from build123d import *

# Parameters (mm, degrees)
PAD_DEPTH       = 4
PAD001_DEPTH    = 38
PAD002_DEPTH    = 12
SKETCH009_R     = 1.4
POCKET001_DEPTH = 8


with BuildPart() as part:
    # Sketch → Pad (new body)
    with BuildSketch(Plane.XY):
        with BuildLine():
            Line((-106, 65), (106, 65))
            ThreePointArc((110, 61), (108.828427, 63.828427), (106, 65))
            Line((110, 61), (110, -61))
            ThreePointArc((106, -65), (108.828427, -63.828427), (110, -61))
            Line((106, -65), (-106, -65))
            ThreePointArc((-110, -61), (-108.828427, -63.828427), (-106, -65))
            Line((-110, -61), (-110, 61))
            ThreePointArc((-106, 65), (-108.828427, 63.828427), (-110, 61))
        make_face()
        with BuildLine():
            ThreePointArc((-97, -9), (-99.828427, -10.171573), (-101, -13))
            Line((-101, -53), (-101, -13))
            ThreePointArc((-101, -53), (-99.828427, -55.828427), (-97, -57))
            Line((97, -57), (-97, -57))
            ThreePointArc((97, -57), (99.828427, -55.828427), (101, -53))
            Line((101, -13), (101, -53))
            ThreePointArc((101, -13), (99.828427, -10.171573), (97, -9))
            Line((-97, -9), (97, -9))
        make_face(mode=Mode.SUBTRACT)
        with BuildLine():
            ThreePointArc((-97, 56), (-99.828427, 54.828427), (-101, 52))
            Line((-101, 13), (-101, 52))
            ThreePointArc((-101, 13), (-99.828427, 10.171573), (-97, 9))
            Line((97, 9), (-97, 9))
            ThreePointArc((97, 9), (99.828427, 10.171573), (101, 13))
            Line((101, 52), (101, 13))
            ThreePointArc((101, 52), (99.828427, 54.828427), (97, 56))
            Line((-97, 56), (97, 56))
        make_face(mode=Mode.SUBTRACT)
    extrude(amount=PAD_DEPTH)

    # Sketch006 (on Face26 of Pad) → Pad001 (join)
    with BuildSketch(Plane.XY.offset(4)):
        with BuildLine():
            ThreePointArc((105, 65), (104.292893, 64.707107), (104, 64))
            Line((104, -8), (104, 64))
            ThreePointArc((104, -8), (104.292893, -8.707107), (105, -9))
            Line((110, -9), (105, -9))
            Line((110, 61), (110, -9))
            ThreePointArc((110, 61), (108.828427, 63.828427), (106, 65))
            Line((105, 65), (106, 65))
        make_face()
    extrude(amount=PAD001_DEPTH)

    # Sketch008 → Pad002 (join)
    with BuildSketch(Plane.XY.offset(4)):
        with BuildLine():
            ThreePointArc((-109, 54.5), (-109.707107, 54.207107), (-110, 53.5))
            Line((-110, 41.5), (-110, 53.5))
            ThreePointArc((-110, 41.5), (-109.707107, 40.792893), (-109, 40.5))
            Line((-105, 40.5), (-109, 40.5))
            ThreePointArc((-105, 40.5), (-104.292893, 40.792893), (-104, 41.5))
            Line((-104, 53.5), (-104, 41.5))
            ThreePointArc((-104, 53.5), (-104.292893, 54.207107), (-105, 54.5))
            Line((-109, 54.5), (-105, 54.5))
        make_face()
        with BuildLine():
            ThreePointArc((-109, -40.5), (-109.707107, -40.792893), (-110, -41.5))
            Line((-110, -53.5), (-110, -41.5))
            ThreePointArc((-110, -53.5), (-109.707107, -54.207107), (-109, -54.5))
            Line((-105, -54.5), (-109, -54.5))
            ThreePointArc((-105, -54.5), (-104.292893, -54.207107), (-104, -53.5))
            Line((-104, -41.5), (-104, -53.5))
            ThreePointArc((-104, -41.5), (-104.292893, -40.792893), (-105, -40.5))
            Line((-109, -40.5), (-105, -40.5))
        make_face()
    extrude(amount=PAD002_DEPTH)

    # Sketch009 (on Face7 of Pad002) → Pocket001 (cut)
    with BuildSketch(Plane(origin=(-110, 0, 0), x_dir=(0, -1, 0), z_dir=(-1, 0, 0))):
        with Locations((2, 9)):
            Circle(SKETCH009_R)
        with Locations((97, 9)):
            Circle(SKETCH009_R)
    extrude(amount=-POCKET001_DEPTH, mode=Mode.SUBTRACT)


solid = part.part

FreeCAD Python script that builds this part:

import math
import FreeCAD as App
import Part
import Sketcher
from FreeCAD import Vector
Q = App.Units.Quantity

doc = App.newDocument("Part")
body = doc.addObject("PartDesign::Body", "Body")

sketch1 = body.newObject("Sketcher::SketchObject", "Sketch")
sketch1.AttachmentSupport = (doc.getObject("XY_Plane"), [""])
sketch1.MapMode = "FlatFace"
sketch1.addGeometry(Part.LineSegment(Vector(106, 65, 0), Vector(-106, 65, 0)), False)
sketch1.addGeometry(Part.ArcOfCircle(Part.Circle(Vector(-106, 61, 0), Vector(0, 0, 1), 4), math.radians(90), math.radians(180)), False)
sketch1.addGeometry(Part.LineSegment(Vector(-110, 61, 0), Vector(-110, -61, 0)), False)
sketch1.addGeometry(Part.ArcOfCircle(Part.Circle(Vector(-106, -61, 0), Vector(0, 0, 1), 4), math.radians(-180), math.radians(-90)), False)
sketch1.addGeometry(Part.LineSegment(Vector(-106, -65, 0), Vector(106, -65, 0)), False)
sketch1.addGeometry(Part.ArcOfCircle(Part.Circle(Vector(106, -61, 0), Vector(0, 0, 1), 4), math.radians(-90), math.radians(0)), False)
sketch1.addGeometry(Part.LineSegment(Vector(110, -61, 0), Vector(110, 61, 0)), False)
sketch1.addGeometry(Part.ArcOfCircle(Part.Circle(Vector(106, 61, 0), Vector(0, 0, 1), 4), math.radians(0), math.radians(90)), False)
sketch1.addGeometry(Part.LineSegment(Vector(-97, -9, 0), Vector(97, -9, 0)), False)
sketch1.addGeometry(Part.ArcOfCircle(Part.Circle(Vector(97, -13, 0), Vector(0, 0, 1), 4), math.radians(0), math.radians(90)), False)
sketch1.addGeometry(Part.LineSegment(Vector(101, -13, 0), Vector(101, -53, 0)), False)
sketch1.addGeometry(Part.ArcOfCircle(Part.Circle(Vector(97, -53, 0), Vector(0, 0, 1), 4), math.radians(-90), math.radians(0)), False)
sketch1.addGeometry(Part.LineSegment(Vector(97, -57, 0), Vector(-97, -57, 0)), False)
sketch1.addGeometry(Part.ArcOfCircle(Part.Circle(Vector(-97, -53, 0), Vector(0, 0, 1), 4), math.radians(-180), math.radians(-90)), False)
sketch1.addGeometry(Part.LineSegment(Vector(-101, -53, 0), Vector(-101, -13, 0)), False)
sketch1.addGeometry(Part.ArcOfCircle(Part.Circle(Vector(-97, -13, 0), Vector(0, 0, 1), 4), math.radians(90), math.radians(180)), False)
sketch1.addGeometry(Part.LineSegment(Vector(-97, 56, 0), Vector(97, 56, 0)), False)
sketch1.addGeometry(Part.ArcOfCircle(Part.Circle(Vector(97, 52, 0), Vector(0, 0, 1), 4), math.radians(0), math.radians(90)), False)
sketch1.addGeometry(Part.LineSegment(Vector(101, 52, 0), Vector(101, 13, 0)), False)
sketch1.addGeometry(Part.ArcOfCircle(Part.Circle(Vector(97, 13, 0), Vector(0, 0, 1), 4), math.radians(-90), math.radians(0)), False)
sketch1.addGeometry(Part.LineSegment(Vector(97, 9, 0), Vector(-97, 9, 0)), False)
sketch1.addGeometry(Part.ArcOfCircle(Part.Circle(Vector(-97, 13, 0), Vector(0, 0, 1), 4), math.radians(-180), math.radians(-90)), False)
sketch1.addGeometry(Part.LineSegment(Vector(-101, 13, 0), Vector(-101, 52, 0)), False)
sketch1.addGeometry(Part.ArcOfCircle(Part.Circle(Vector(-97, 52, 0), Vector(0, 0, 1), 4), math.radians(90), math.radians(180)), False)
sketch1.addConstraint(Sketcher.Constraint("Tangent", 0, 2, 1, 1))
sketch1.addConstraint(Sketcher.Constraint("Tangent", 1, 2, 2, 1))
sketch1.addConstraint(Sketcher.Constraint("Tangent", 2, 2, 3, 1))
sketch1.addConstraint(Sketcher.Constraint("Tangent", 3, 2, 4, 1))
sketch1.addConstraint(Sketcher.Constraint("Tangent", 4, 2, 5, 1))
sketch1.addConstraint(Sketcher.Constraint("Tangent", 5, 2, 6, 1))
sketch1.addConstraint(Sketcher.Constraint("Tangent", 6, 2, 7, 1))
sketch1.addConstraint(Sketcher.Constraint("Tangent", 7, 2, 0, 1))
sketch1.addConstraint(Sketcher.Constraint("Tangent", 8, 2, 9, 2))
sketch1.addConstraint(Sketcher.Constraint("Tangent", 9, 1, 10, 1))
sketch1.addConstraint(Sketcher.Constraint("Tangent", 10, 2, 11, 2))
sketch1.addConstraint(Sketcher.Constraint("Tangent", 11, 1, 12, 1))
sketch1.addConstraint(Sketcher.Constraint("Tangent", 12, 2, 13, 2))
sketch1.addConstraint(Sketcher.Constraint("Tangent", 13, 1, 14, 1))
sketch1.addConstraint(Sketcher.Constraint("Tangent", 14, 2, 15, 2))
sketch1.addConstraint(Sketcher.Constraint("Tangent", 15, 1, 8, 1))
sketch1.addConstraint(Sketcher.Constraint("Tangent", 16, 2, 17, 2))
sketch1.addConstraint(Sketcher.Constraint("Tangent", 17, 1, 18, 1))
sketch1.addConstraint(Sketcher.Constraint("Tangent", 18, 2, 19, 2))
sketch1.addConstraint(Sketcher.Constraint("Tangent", 19, 1, 20, 1))
sketch1.addConstraint(Sketcher.Constraint("Tangent", 20, 2, 21, 2))
sketch1.addConstraint(Sketcher.Constraint("Tangent", 21, 1, 22, 1))
sketch1.addConstraint(Sketcher.Constraint("Tangent", 22, 2, 23, 2))
sketch1.addConstraint(Sketcher.Constraint("Tangent", 23, 1, 16, 1))
sketch1.addConstraint(Sketcher.Constraint("Horizontal", 0))
sketch1.addConstraint(Sketcher.Constraint("Vertical", 2))
sketch1.addConstraint(Sketcher.Constraint("Horizontal", 4))
sketch1.addConstraint(Sketcher.Constraint("Vertical", 6))
sketch1.addConstraint(Sketcher.Constraint("Horizontal", 8))
sketch1.addConstraint(Sketcher.Constraint("Vertical", 10))
sketch1.addConstraint(Sketcher.Constraint("Horizontal", 12))
sketch1.addConstraint(Sketcher.Constraint("Vertical", 14))
sketch1.addConstraint(Sketcher.Constraint("Horizontal", 16))
sketch1.addConstraint(Sketcher.Constraint("Vertical", 18))
sketch1.addConstraint(Sketcher.Constraint("Horizontal", 20))
sketch1.addConstraint(Sketcher.Constraint("Vertical", 22))
sketch1.addConstraint(Sketcher.Constraint("Equal", 1, 3))
sketch1.addConstraint(Sketcher.Constraint("Equal", 3, 5))
sketch1.addConstraint(Sketcher.Constraint("Equal", 5, 7))
sketch1.addConstraint(Sketcher.Constraint("Equal", 7, 9))
sketch1.addConstraint(Sketcher.Constraint("Equal", 9, 11))
sketch1.addConstraint(Sketcher.Constraint("Equal", 11, 13))
sketch1.addConstraint(Sketcher.Constraint("Equal", 13, 15))
sketch1.addConstraint(Sketcher.Constraint("Equal", 15, 17))
sketch1.addConstraint(Sketcher.Constraint("Equal", 17, 19))
sketch1.addConstraint(Sketcher.Constraint("Equal", 19, 21))
sketch1.addConstraint(Sketcher.Constraint("Equal", 21, 23))
sketch1.addConstraint(Sketcher.Constraint("Symmetric", 1, 3, 5, 3, -1, 1))
sketch1.addConstraint(Sketcher.Constraint("Symmetric", 15, 3, 19, 3, -1, 1))
sketch1.addConstraint(Sketcher.Constraint("Vertical", 11, 3, 17, 3))
sketch1.addConstraint(Sketcher.Constraint("Vertical", 15, 3, 21, 3))
sketch1.addConstraint(Sketcher.Constraint("Radius", 1, Q("4 mm")))
sketch1.addConstraint(Sketcher.Constraint("DistanceX", 0, 2, 0, 1, Q("212 mm")))
sketch1.addConstraint(Sketcher.Constraint("DistanceX", 8, 1, 8, 2, Q("194 mm")))
sketch1.addConstraint(Sketcher.Constraint("DistanceY", 2, 2, 2, 1, Q("122 mm")))
sketch1.addConstraint(Sketcher.Constraint("DistanceY", 10, 2, 10, 1, Q("40 mm")))
sketch1.addConstraint(Sketcher.Constraint("DistanceY", 18, 2, 18, 1, Q("39 mm")))
sketch1.addConstraint(Sketcher.Constraint("DistanceY", 9, 3, -1, 1, Q("13 mm")))
pad1 = body.newObject("PartDesign::Pad", "Pad")
pad1.Profile = sketch1
pad1.Length = 4

sketch2 = body.newObject("Sketcher::SketchObject", "Sketch001")
sketch2.AttachmentSupport = (doc.getObject("XY_Plane"), [""])
sketch2.MapMode = "FlatFace"
sketch2.AttachmentOffset = App.Placement(Vector(0, 0, 4), App.Rotation())
sketch2.addGeometry(Part.ArcOfCircle(Part.Circle(Vector(105, 64, 0), Vector(0, 0, 1), 1), math.radians(90), math.radians(180)), False)
sketch2.addGeometry(Part.LineSegment(Vector(104, 64, 0), Vector(104, -8, 0)), False)
sketch2.addGeometry(Part.ArcOfCircle(Part.Circle(Vector(105, -8, 0), Vector(0, 0, 1), 1), math.radians(180), math.radians(270)), False)
sketch2.addGeometry(Part.LineSegment(Vector(105, -9, 0), Vector(110, -9, 0)), False)
sketch2.addGeometry(Part.LineSegment(Vector(110, -9, 0), Vector(110, 61, 0)), False)
sketch2.addGeometry(Part.ArcOfCircle(Part.Circle(Vector(106, 61, 0), Vector(0, 0, 1), 4), math.radians(0), math.radians(90)), False)
sketch2.addGeometry(Part.LineSegment(Vector(106, 65, 0), Vector(105, 65, 0)), False)
sketch2.addConstraint(Sketcher.Constraint("Tangent", 0, 2, 1, 1))
sketch2.addConstraint(Sketcher.Constraint("Tangent", 1, 2, 2, 1))
sketch2.addConstraint(Sketcher.Constraint("Tangent", 2, 2, 3, 1))
sketch2.addConstraint(Sketcher.Constraint("Coincident", 3, 2, 4, 1))
sketch2.addConstraint(Sketcher.Constraint("Tangent", 4, 2, 5, 1))
sketch2.addConstraint(Sketcher.Constraint("Tangent", 5, 2, 6, 1))
sketch2.addConstraint(Sketcher.Constraint("Tangent", 6, 2, 0, 1))
sketch2.addConstraint(Sketcher.Constraint("Vertical", 1))
sketch2.addConstraint(Sketcher.Constraint("Horizontal", 3))
sketch2.addConstraint(Sketcher.Constraint("Vertical", 4))
sketch2.addConstraint(Sketcher.Constraint("Horizontal", 6))
sketch2.addConstraint(Sketcher.Constraint("Equal", 0, 2))
sketch2.addConstraint(Sketcher.Constraint("Radius", 0, Q("0.999999 mm")))
sketch2.addConstraint(Sketcher.Constraint("Radius", 5, Q("4 mm")))
sketch2.addConstraint(Sketcher.Constraint("DistanceX", 3, 1, 3, 2, Q("5 mm")))
sketch2.addConstraint(Sketcher.Constraint("DistanceY", 1, 2, 1, 1, Q("72 mm")))
sketch2.addConstraint(Sketcher.Constraint("DistanceX", -1, 1, 0, 3, Q("104.999999 mm")))
sketch2.addConstraint(Sketcher.Constraint("DistanceY", -1, 1, 0, 3, Q("64.000001 mm")))
pad2 = body.newObject("PartDesign::Pad", "Pad001")
pad2.Profile = sketch2
pad2.Length = 38

sketch3 = body.newObject("Sketcher::SketchObject", "Sketch002")
sketch3.AttachmentSupport = (doc.getObject("XY_Plane"), [""])
sketch3.MapMode = "FlatFace"
sketch3.AttachmentOffset = App.Placement(Vector(0, 0, 4), App.Rotation())
sketch3.addGeometry(Part.ArcOfCircle(Part.Circle(Vector(-109, 53.5, 0), Vector(0, 0, 1), 1), math.radians(90), math.radians(180)), False)
sketch3.addGeometry(Part.LineSegment(Vector(-110, 53.5, 0), Vector(-110, 41.5, 0)), False)
sketch3.addGeometry(Part.ArcOfCircle(Part.Circle(Vector(-109, 41.5, 0), Vector(0, 0, 1), 1), math.radians(180), math.radians(270)), False)
sketch3.addGeometry(Part.LineSegment(Vector(-109, 40.5, 0), Vector(-105, 40.5, 0)), False)
sketch3.addGeometry(Part.ArcOfCircle(Part.Circle(Vector(-105, 41.5, 0), Vector(0, 0, 1), 1), math.radians(-90), math.radians(0)), False)
sketch3.addGeometry(Part.LineSegment(Vector(-104, 41.5, 0), Vector(-104, 53.5, 0)), False)
sketch3.addGeometry(Part.ArcOfCircle(Part.Circle(Vector(-105, 53.5, 0), Vector(0, 0, 1), 1), math.radians(0), math.radians(90)), False)
sketch3.addGeometry(Part.LineSegment(Vector(-105, 54.5, 0), Vector(-109, 54.5, 0)), False)
sketch3.addGeometry(Part.ArcOfCircle(Part.Circle(Vector(-109, -41.5, 0), Vector(0, 0, 1), 1), math.radians(90), math.radians(180)), False)
sketch3.addGeometry(Part.LineSegment(Vector(-110, -41.5, 0), Vector(-110, -53.5, 0)), False)
sketch3.addGeometry(Part.ArcOfCircle(Part.Circle(Vector(-109, -53.5, 0), Vector(0, 0, 1), 1), math.radians(180), math.radians(270)), False)
sketch3.addGeometry(Part.LineSegment(Vector(-109, -54.5, 0), Vector(-105, -54.5, 0)), False)
sketch3.addGeometry(Part.ArcOfCircle(Part.Circle(Vector(-105, -53.5, 0), Vector(0, 0, 1), 1), math.radians(-90), math.radians(0)), False)
sketch3.addGeometry(Part.LineSegment(Vector(-104, -53.5, 0), Vector(-104, -41.5, 0)), False)
sketch3.addGeometry(Part.ArcOfCircle(Part.Circle(Vector(-105, -41.5, 0), Vector(0, 0, 1), 1), math.radians(0), math.radians(90)), False)
sketch3.addGeometry(Part.LineSegment(Vector(-105, -40.5, 0), Vector(-109, -40.5, 0)), False)
sketch3.addConstraint(Sketcher.Constraint("Tangent", 0, 2, 1, 1))
sketch3.addConstraint(Sketcher.Constraint("Tangent", 1, 2, 2, 1))
sketch3.addConstraint(Sketcher.Constraint("Tangent", 2, 2, 3, 1))
sketch3.addConstraint(Sketcher.Constraint("Tangent", 3, 2, 4, 1))
sketch3.addConstraint(Sketcher.Constraint("Tangent", 4, 2, 5, 1))
sketch3.addConstraint(Sketcher.Constraint("Tangent", 5, 2, 6, 1))
sketch3.addConstraint(Sketcher.Constraint("Tangent", 6, 2, 7, 1))
sketch3.addConstraint(Sketcher.Constraint("Tangent", 7, 2, 0, 1))
sketch3.addConstraint(Sketcher.Constraint("Tangent", 8, 2, 9, 1))
sketch3.addConstraint(Sketcher.Constraint("Tangent", 9, 2, 10, 1))
sketch3.addConstraint(Sketcher.Constraint("Tangent", 10, 2, 11, 1))
sketch3.addConstraint(Sketcher.Constraint("Tangent", 11, 2, 12, 1))
sketch3.addConstraint(Sketcher.Constraint("Tangent", 12, 2, 13, 1))
sketch3.addConstraint(Sketcher.Constraint("Tangent", 13, 2, 14, 1))
sketch3.addConstraint(Sketcher.Constraint("Tangent", 14, 2, 15, 1))
sketch3.addConstraint(Sketcher.Constraint("Tangent", 15, 2, 8, 1))
sketch3.addConstraint(Sketcher.Constraint("Vertical", 1))
sketch3.addConstraint(Sketcher.Constraint("Horizontal", 3))
sketch3.addConstraint(Sketcher.Constraint("Vertical", 5))
sketch3.addConstraint(Sketcher.Constraint("Horizontal", 7))
sketch3.addConstraint(Sketcher.Constraint("Vertical", 9))
sketch3.addConstraint(Sketcher.Constraint("Horizontal", 11))
sketch3.addConstraint(Sketcher.Constraint("Vertical", 13))
sketch3.addConstraint(Sketcher.Constraint("Horizontal", 15))
sketch3.addConstraint(Sketcher.Constraint("Equal", 0, 2))
sketch3.addConstraint(Sketcher.Constraint("Equal", 2, 4))
sketch3.addConstraint(Sketcher.Constraint("Equal", 4, 6))
sketch3.addConstraint(Sketcher.Constraint("Equal", 6, 8))
sketch3.addConstraint(Sketcher.Constraint("Equal", 8, 10))
sketch3.addConstraint(Sketcher.Constraint("Equal", 10, 12))
sketch3.addConstraint(Sketcher.Constraint("Equal", 12, 14))
sketch3.addConstraint(Sketcher.Constraint("Symmetric", 2, 3, 8, 3, -1))
sketch3.addConstraint(Sketcher.Constraint("Symmetric", 6, 3, 12, 3, -1))
sketch3.addConstraint(Sketcher.Constraint("Radius", 0, Q("0.999999 mm")))
sketch3.addConstraint(Sketcher.Constraint("DistanceX", 3, 1, 3, 2, Q("4 mm")))
sketch3.addConstraint(Sketcher.Constraint("DistanceY", 1, 2, 1, 1, Q("12 mm")))
sketch3.addConstraint(Sketcher.Constraint("DistanceX", 0, 3, -1, 1, Q("109.000001 mm")))
sketch3.addConstraint(Sketcher.Constraint("DistanceY", 8, 3, 2, 3, Q("82.999999 mm")))
pad3 = body.newObject("PartDesign::Pad", "Pad002")
pad3.Profile = sketch3
pad3.Length = 12

sketch4 = body.newObject("Sketcher::SketchObject", "Sketch003")
sketch4.AttachmentSupport = (doc.getObject("YZ_Plane"), [""])
sketch4.MapMode = "FlatFace"
sketch4.AttachmentOffset = App.Placement(Vector(0, 0, -110), App.Rotation())
sketch4.addGeometry(Part.Circle(Vector(-2, 9, 0), Vector(0, 0, 1), 1.4), False)
sketch4.addGeometry(Part.Circle(Vector(-97, 9, 0), Vector(0, 0, 1), 1.4), False)
sketch4.addConstraint(Sketcher.Constraint("Equal", 0, 1))
sketch4.addConstraint(Sketcher.Constraint("Horizontal", 0, 3, 1, 3))
sketch4.addConstraint(Sketcher.Constraint("Diameter", 0, Q("2.8 mm")))
sketch4.addConstraint(Sketcher.Constraint("DistanceX", 0, 3, -1, 1, Q("2 mm")))
sketch4.addConstraint(Sketcher.Constraint("DistanceY", -1, 1, 0, 3, Q("9 mm")))
sketch4.addConstraint(Sketcher.Constraint("DistanceX", 1, 3, -1, 1, Q("97 mm")))
pocket1 = body.newObject("PartDesign::Pocket", "Pocket")
pocket1.Profile = sketch4
pocket1.Length = 8
pocket1.Reversed = True

doc.recompute()
